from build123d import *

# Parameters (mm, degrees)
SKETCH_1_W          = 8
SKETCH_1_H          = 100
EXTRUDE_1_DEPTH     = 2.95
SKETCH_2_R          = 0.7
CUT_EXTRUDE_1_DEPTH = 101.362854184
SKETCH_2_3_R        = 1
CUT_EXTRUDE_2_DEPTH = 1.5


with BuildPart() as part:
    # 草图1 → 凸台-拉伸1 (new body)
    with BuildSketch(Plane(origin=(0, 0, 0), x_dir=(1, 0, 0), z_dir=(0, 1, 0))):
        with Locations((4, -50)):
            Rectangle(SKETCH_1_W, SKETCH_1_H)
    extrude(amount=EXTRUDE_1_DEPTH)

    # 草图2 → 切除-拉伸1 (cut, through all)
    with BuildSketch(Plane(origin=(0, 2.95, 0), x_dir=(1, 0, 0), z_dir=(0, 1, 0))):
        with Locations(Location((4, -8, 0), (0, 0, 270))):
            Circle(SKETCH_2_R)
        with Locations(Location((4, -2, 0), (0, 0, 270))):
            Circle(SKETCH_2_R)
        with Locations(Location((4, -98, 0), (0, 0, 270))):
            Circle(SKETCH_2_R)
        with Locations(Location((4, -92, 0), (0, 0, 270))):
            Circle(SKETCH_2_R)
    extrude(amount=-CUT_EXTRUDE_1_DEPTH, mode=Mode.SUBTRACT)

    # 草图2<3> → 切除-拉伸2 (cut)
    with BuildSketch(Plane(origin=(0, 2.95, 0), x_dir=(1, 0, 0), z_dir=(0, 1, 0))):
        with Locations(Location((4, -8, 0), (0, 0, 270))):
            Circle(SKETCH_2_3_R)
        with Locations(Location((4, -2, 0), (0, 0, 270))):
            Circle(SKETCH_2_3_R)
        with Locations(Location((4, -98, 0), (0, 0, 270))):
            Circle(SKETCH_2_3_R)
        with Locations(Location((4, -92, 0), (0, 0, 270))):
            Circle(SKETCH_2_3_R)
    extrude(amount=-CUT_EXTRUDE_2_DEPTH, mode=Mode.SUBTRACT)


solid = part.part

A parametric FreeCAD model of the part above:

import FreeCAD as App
import Part
import Sketcher
from FreeCAD import Vector
Q = App.Units.Quantity


def add_polygon(sketch, points):
    """Adds a closed chain of lines whose ends are joined by coincident constraints."""
    first, n = sketch.GeometryCount, len(points)
    for a, b in zip(points, points[1:] + points[:1]):
        sketch.addGeometry(Part.LineSegment(App.Vector(*a, 0), App.Vector(*b, 0)), False)
    for i in range(n):
        sketch.addConstraint(Sketcher.Constraint("Coincident", first + i, 2, first + (i + 1) % n, 1))

doc = App.newDocument("Part")
body = doc.addObject("PartDesign::Body", "Body")

sketch1 = body.newObject("Sketcher::SketchObject", "Sketch")
sketch1.AttachmentSupport = (doc.getObject("XZ_Plane"), [""])
sketch1.MapMode = "FlatFace"
add_polygon(sketch1, [(0, 0), (0, 100), (8, 100), (8, 0)])
sketch1.addConstraint(Sketcher.Constraint("Vertical", 0))
sketch1.addConstraint(Sketcher.Constraint("Horizontal", 1))
sketch1.addConstraint(Sketcher.Constraint("Vertical", 2))
sketch1.addConstraint(Sketcher.Constraint("Horizontal", 3))
sketch1.addConstraint(Sketcher.Constraint("Coincident", 3, 2, -1, 1))
sketch1.addConstraint(Sketcher.Constraint("DistanceX", 1, 1, 1, 2, Q("8 mm")))
sketch1.addConstraint(Sketcher.Constraint("DistanceY", 0, 1, 0, 2, Q("100 mm")))
pad1 = body.newObject("PartDesign::Pad", "Pad")
pad1.Profile = sketch1
pad1.Length = 2.95
pad1.Reversed = True

sketch2 = body.newObject("Sketcher::SketchObject", "Sketch001")
sketch2.AttachmentSupport = (doc.getObject("XZ_Plane"), [""])
sketch2.MapMode = "FlatFace"
sketch2.AttachmentOffset = App.Placement(Vector(0, 0, -2.95), App.Rotation())
sketch2.addGeometry(Part.Circle(Vector(4, 8, 0), Vector(0, 0, 1), 0.7), False)
sketch2.addGeometry(Part.Circle(Vector(4, 2, 0), Vector(0, 0, 1), 0.7), False)
sketch2.addGeometry(Part.Circle(Vector(4, 98, 0), Vector(0, 0, 1), 0.7), False)
sketch2.addGeometry(Part.Circle(Vector(4, 92, 0), Vector(0, 0, 1), 0.7), False)
sketch2.addConstraint(Sketcher.Constraint("Equal", 0, 1))
sketch2.addConstraint(Sketcher.Constraint("Equal", 1, 2))
sketch2.addConstraint(Sketcher.Constraint("Equal", 2, 3))
sketch2.addConstraint(Sketcher.Constraint("Vertical", 0, 3, 1, 3))
sketch2.addConstraint(Sketcher.Constraint("Vertical", 1, 3, 2, 3))
sketch2.addConstraint(Sketcher.Constraint("Vertical", 2, 3, 3, 3))
sketch2.addConstraint(Sketcher.Constraint("Diameter", 0, Q("1.4 mm")))
sketch2.addConstraint(Sketcher.Constraint("DistanceX", -1, 1, 0, 3, Q("4 mm")))
sketch2.addConstraint(Sketcher.Constraint("DistanceY", -1, 1, 0, 3, Q("8 mm")))
sketch2.addConstraint(Sketcher.Constraint("DistanceY", -1, 1, 1, 3, Q("2 mm")))
sketch2.addConstraint(Sketcher.Constraint("DistanceY", -1, 1, 2, 3, Q("98 mm")))
sketch2.addConstraint(Sketcher.Constraint("DistanceY", -1, 1, 3, 3, Q("92 mm")))
pocket1 = body.newObject("PartDesign::Pocket", "Pocket")
pocket1.Profile = sketch2
pocket1.Type = "ThroughAll"
pocket1.Reversed = True

sketch3 = body.newObject("Sketcher::SketchObject", "Sketch002")
sketch3.AttachmentSupport = (doc.getObject("XZ_Plane"), [""])
sketch3.MapMode = "FlatFace"
sketch3.AttachmentOffset = App.Placement(Vector(0, 0, -2.95), App.Rotation())
sketch3.addGeometry(Part.Circle(Vector(4, 8, 0), Vector(0, 0, 1), 1), False)
sketch3.addGeometry(Part.Circle(Vector(4, 2, 0), Vector(0, 0, 1), 1), False)
sketch3.addGeometry(Part.Circle(Vector(4, 98, 0), Vector(0, 0, 1), 1), False)
sketch3.addGeometry(Part.Circle(Vector(4, 92, 0), Vector(0, 0, 1), 1), False)
sketch3.addConstraint(Sketcher.Constraint("Equal", 0, 1))
sketch3.addConstraint(Sketcher.Constraint("Equal", 1, 2))
sketch3.addConstraint(Sketcher.Constraint("Equal", 2, 3))
sketch3.addConstraint(Sketcher.Constraint("Vertical", 0, 3, 1, 3))
sketch3.addConstraint(Sketcher.Constraint("Vertical", 1, 3, 2, 3))
sketch3.addConstraint(Sketcher.Constraint("Vertical", 2, 3, 3, 3))
sketch3.addConstraint(Sketcher.Constraint("Diameter", 0, Q("2 mm")))
sketch3.addConstraint(Sketcher.Constraint("DistanceX", -1, 1, 0, 3, Q("4 mm")))
sketch3.addConstraint(Sketcher.Constraint("DistanceY", -1, 1, 0, 3, Q("8 mm")))
sketch3.addConstraint(Sketcher.Constraint("DistanceY", -1, 1, 1, 3, Q("2 mm")))
sketch3.addConstraint(Sketcher.Constraint("DistanceY", -1, 1, 2, 3, Q("98 mm")))
sketch3.addConstraint(Sketcher.Constraint("DistanceY", -1, 1, 3, 3, Q("92 mm")))
pocket2 = body.newObject("PartDesign::Pocket", "Pocket001")
pocket2.Profile = sketch3
pocket2.Length = 1.5
pocket2.Reversed = True

doc.recompute()
